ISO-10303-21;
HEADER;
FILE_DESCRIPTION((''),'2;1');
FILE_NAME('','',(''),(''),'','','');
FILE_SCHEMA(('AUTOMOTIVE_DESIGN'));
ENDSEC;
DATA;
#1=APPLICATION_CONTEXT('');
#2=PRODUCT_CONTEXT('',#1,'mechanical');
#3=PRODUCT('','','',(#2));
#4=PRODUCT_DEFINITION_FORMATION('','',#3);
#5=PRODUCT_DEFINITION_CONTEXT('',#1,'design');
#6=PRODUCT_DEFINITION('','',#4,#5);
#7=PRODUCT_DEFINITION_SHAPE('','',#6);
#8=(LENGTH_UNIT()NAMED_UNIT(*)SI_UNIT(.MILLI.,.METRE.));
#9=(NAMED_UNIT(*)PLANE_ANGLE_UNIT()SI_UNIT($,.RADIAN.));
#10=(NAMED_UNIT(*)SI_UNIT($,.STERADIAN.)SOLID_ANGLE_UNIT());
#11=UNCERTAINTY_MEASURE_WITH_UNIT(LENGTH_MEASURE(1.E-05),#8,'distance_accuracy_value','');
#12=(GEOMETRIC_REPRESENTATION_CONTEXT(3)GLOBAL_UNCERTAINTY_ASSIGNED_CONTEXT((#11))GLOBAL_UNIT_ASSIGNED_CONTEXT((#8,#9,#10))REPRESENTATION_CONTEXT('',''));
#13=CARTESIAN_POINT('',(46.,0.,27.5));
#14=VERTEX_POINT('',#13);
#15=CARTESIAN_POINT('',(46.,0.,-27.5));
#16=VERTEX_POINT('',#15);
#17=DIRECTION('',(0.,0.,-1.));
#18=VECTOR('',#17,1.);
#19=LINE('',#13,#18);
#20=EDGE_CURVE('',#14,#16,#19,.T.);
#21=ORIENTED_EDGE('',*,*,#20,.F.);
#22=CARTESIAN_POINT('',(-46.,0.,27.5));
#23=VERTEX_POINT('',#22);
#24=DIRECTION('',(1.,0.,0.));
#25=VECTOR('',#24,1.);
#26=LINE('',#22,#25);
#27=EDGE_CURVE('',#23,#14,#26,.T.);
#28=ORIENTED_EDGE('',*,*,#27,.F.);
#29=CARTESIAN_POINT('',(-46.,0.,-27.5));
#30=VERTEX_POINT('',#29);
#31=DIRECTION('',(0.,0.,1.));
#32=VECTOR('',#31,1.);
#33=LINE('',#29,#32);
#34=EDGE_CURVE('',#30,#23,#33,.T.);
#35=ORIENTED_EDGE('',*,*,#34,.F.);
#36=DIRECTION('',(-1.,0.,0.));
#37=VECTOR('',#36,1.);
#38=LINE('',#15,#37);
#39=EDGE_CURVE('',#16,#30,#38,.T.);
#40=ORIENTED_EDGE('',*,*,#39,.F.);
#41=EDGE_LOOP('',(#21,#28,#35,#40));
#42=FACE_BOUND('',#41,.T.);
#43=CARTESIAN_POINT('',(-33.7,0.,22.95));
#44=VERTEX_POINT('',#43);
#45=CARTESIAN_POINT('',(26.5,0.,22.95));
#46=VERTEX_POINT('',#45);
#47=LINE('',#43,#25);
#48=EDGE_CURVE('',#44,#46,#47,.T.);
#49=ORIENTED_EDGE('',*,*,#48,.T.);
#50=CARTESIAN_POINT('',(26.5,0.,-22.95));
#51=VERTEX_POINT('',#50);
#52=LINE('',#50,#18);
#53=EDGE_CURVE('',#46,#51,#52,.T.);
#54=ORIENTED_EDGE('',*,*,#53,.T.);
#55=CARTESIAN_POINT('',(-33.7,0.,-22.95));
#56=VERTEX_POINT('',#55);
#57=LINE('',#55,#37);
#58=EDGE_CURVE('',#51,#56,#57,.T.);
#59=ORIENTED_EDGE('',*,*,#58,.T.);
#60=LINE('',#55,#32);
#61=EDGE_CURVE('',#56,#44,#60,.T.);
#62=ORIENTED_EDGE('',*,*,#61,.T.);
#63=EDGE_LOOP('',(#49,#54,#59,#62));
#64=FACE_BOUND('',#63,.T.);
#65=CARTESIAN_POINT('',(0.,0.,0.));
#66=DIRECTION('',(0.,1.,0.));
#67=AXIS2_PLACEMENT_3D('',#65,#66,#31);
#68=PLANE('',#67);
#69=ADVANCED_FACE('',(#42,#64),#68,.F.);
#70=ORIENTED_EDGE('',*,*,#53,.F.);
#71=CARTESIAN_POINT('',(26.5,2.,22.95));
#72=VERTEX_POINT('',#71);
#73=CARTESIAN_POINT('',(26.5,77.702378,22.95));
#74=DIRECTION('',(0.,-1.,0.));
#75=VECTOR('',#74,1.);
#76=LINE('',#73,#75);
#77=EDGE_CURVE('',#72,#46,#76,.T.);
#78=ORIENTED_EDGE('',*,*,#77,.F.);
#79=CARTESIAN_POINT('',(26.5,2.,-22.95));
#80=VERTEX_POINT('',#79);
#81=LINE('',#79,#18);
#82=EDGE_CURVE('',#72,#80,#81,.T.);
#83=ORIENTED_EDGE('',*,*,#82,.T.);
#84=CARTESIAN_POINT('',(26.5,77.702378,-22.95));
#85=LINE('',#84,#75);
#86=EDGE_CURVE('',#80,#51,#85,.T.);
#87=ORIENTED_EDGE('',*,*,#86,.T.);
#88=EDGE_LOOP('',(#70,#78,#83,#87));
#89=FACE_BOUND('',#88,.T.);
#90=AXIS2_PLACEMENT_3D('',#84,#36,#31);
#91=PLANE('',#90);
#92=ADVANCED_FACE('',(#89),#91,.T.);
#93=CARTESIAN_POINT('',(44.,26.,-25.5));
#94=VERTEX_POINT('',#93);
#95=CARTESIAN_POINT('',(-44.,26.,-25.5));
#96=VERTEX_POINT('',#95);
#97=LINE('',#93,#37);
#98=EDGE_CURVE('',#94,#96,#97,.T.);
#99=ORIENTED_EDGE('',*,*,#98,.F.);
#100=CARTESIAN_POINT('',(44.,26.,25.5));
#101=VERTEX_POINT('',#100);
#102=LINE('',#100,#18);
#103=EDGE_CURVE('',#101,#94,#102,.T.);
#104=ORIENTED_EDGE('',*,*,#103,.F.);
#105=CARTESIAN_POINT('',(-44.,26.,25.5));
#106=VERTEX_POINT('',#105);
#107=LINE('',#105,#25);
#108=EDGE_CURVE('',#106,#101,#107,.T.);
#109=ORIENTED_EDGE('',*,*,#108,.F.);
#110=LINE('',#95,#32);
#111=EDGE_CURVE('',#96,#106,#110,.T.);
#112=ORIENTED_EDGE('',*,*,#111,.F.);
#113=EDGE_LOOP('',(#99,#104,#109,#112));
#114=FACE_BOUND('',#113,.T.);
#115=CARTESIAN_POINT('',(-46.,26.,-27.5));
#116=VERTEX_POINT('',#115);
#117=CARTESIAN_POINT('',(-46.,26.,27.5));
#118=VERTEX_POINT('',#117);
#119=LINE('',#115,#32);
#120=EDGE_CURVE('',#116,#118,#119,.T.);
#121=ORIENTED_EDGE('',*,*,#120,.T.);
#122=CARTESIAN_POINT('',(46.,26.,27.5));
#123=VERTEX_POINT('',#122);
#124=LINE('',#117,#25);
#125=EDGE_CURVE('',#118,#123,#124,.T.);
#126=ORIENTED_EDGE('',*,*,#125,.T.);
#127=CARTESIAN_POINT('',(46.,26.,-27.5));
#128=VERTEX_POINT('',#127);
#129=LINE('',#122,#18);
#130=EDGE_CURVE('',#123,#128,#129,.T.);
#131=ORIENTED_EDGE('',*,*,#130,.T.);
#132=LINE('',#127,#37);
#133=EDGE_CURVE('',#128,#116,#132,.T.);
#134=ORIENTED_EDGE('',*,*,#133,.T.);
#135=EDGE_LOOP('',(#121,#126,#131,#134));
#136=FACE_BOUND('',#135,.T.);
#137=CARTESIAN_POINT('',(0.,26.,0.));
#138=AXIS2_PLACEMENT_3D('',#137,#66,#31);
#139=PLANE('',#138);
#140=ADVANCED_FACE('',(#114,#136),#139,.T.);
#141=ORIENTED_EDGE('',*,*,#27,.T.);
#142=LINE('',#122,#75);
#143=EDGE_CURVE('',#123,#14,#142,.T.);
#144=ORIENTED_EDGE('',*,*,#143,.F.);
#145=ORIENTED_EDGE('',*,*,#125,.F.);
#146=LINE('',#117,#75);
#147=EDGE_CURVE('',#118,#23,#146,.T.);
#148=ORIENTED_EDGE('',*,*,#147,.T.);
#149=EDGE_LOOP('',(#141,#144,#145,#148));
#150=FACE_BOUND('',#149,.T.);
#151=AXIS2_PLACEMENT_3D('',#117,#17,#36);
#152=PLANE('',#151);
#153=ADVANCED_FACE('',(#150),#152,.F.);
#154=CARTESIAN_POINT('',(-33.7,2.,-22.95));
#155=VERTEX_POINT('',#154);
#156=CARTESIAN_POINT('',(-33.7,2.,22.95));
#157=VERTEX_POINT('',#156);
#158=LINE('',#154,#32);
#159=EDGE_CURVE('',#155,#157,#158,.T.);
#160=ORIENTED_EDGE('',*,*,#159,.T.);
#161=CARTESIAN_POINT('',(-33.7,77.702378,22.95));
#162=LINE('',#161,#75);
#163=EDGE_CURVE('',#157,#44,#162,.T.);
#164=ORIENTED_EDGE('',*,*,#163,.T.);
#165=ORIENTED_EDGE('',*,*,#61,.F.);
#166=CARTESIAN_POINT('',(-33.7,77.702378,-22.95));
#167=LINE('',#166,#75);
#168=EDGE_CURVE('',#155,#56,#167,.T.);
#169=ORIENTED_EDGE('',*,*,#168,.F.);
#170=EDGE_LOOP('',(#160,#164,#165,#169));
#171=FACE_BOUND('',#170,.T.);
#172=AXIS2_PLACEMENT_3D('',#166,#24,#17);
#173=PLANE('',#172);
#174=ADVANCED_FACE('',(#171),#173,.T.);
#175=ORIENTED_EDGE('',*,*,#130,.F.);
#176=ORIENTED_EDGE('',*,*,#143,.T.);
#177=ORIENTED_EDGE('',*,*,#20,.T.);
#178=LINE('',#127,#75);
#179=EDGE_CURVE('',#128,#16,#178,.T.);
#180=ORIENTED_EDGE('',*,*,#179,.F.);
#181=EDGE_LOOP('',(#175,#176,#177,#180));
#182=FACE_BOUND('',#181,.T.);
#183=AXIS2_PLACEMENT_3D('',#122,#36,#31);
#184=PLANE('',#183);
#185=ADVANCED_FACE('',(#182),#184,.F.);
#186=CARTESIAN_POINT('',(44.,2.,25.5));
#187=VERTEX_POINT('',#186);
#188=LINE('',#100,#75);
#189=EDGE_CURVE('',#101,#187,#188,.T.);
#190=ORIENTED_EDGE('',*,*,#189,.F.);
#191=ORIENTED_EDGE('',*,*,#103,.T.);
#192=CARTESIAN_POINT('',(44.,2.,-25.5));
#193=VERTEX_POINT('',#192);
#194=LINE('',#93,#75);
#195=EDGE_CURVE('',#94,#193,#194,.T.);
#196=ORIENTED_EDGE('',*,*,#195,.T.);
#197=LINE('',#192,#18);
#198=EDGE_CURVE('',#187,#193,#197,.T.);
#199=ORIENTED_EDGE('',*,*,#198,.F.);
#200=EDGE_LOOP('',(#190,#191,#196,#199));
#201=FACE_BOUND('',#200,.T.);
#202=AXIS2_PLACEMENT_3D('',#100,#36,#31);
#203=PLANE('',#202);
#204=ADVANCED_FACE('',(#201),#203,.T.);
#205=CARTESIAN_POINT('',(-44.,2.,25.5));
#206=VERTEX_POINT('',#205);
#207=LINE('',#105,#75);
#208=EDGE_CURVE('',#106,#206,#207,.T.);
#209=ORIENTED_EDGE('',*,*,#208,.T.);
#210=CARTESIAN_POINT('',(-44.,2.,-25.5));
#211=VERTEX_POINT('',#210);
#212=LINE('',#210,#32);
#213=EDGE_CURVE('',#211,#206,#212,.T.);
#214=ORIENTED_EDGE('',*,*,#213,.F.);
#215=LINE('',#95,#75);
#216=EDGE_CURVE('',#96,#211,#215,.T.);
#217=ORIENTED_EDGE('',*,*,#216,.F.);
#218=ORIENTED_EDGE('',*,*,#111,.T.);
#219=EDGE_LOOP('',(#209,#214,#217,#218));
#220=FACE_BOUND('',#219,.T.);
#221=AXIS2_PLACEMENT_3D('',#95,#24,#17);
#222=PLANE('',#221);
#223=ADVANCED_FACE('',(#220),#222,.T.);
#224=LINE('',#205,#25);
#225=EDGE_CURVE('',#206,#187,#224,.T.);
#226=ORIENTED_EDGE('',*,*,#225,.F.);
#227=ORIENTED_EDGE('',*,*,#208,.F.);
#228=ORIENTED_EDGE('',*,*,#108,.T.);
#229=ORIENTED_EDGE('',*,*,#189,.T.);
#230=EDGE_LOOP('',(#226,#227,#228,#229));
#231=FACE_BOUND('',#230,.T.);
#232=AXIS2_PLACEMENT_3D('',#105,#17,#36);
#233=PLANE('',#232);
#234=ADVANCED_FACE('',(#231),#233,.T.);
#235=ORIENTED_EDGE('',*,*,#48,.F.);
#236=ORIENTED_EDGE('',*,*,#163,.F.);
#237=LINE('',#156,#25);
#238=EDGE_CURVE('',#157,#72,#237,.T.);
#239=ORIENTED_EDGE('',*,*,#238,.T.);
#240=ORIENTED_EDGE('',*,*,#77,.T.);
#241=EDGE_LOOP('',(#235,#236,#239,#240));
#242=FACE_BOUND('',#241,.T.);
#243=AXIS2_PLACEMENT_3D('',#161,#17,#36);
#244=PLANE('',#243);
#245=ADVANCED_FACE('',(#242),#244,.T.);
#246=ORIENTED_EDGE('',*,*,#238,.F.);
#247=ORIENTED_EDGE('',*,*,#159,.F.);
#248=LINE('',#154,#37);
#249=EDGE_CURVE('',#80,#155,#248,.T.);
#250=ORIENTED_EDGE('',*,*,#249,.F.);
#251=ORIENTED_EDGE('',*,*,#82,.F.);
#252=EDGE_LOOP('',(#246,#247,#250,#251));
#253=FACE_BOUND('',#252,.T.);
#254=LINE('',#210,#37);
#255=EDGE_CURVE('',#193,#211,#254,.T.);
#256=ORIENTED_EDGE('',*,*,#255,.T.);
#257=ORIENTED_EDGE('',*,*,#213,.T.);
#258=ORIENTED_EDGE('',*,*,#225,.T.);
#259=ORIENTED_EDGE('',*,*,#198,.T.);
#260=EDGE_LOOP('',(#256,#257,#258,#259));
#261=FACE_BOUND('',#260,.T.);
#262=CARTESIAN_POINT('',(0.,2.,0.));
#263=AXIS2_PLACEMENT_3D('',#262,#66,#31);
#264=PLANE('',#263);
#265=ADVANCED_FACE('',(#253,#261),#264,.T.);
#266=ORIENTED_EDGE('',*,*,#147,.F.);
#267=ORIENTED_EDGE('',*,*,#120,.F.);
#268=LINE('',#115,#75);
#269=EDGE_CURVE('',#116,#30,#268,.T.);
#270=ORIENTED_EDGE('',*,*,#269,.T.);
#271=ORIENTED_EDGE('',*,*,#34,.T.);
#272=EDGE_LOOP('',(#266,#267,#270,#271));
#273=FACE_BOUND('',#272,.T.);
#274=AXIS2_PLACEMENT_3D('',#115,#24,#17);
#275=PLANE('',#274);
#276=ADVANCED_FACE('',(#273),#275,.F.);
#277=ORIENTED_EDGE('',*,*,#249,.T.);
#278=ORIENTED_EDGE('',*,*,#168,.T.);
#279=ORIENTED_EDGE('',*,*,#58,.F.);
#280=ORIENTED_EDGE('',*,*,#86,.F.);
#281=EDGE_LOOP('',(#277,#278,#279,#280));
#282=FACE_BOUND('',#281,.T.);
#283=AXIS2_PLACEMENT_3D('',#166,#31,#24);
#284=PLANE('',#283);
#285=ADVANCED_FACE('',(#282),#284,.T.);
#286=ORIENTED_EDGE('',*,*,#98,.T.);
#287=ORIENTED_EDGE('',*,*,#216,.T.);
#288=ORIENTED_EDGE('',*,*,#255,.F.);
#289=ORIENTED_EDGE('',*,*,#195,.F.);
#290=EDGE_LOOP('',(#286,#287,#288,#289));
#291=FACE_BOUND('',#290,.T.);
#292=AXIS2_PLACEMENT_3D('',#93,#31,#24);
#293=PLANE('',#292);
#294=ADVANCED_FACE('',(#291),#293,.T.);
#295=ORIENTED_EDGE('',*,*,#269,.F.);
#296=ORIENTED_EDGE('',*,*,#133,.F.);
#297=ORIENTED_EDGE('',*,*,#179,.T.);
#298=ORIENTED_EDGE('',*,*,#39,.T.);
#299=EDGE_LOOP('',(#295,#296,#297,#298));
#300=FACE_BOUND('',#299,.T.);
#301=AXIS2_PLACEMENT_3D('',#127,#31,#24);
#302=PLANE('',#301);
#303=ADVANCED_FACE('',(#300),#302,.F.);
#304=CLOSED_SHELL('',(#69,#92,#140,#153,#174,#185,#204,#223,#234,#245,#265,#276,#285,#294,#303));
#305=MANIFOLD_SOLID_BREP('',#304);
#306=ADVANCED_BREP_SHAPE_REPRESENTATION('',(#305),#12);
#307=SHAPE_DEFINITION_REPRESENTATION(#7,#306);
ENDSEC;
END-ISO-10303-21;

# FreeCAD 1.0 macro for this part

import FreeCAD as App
import Part
import Sketcher

V = App.Vector


def add_polygon(sketch, points):
    """Adds a closed chain of lines whose ends are joined by coincident constraints."""
    first, n = sketch.GeometryCount, len(points)
    for a, b in zip(points, points[1:] + points[:1]):
        sketch.addGeometry(Part.LineSegment(App.Vector(*a, 0), App.Vector(*b, 0)), False)
    for i in range(n):
        sketch.addConstraint(Sketcher.Constraint("Coincident", first + i, 2, first + (i + 1) % n, 1))

doc = App.newDocument("Part")
body = doc.addObject("PartDesign::Body", "Body")

# Sketch on XZ plane
sketch1 = body.newObject("Sketcher::SketchObject", "Sketch")
sketch1.AttachmentSupport = (doc.getObject("XZ_Plane"), [""])
sketch1.MapMode = "FlatFace"
add_polygon(sketch1, [(-44, -26), (-44, 26), (44, 26), (44, -26)])  # lines 0-3
sketch1.addConstraint([
    Sketcher.Constraint("Vertical", 0),
    Sketcher.Constraint("Horizontal", 1),
    Sketcher.Constraint("Vertical", 2),
    Sketcher.Constraint("Horizontal", 3),
    Sketcher.Constraint("Symmetric", 0, 2, 2, 2, -1, 1),
    Sketcher.Constraint("DistanceX", 1, 1, 1, 2, 88.0),
    Sketcher.Constraint("DistanceY", 0, 1, 0, 2, 51.0),
])
pad1 = body.newObject("PartDesign::Pad", "Pad")
pad1.Profile = sketch1
pad1.Length = 2
pad1.Reversed = True

# Sketch on XZ plane
sketch2 = body.newObject("Sketcher::SketchObject", "Sketch001")
sketch2.AttachmentSupport = (doc.getObject("XZ_Plane"), [""])
sketch2.MapMode = "FlatFace"
add_polygon(sketch2, [(-34, -23), (-34, 23), (26, 23), (26, -23)])  # lines 0-3
sketch2.addConstraint([
    Sketcher.Constraint("Vertical", 0),
    Sketcher.Constraint("Horizontal", 1),
    Sketcher.Constraint("Vertical", 2),
    Sketcher.Constraint("Horizontal", 3),
    Sketcher.Constraint("DistanceX", 1, 1, 1, 2, 60.2),
    Sketcher.Constraint("DistanceY", 0, 1, 0, 2, 45.9),
    Sketcher.Constraint("DistanceX", 0, 2, -1, 1, 33.7),
    Sketcher.Constraint("DistanceY", -1, 1, 0, 2, 22.95),
])
pocket1 = body.newObject("PartDesign::Pocket", "Pocket")
pocket1.Profile = sketch2
pocket1.Length = 2

# Sketch on XZ plane
sketch3 = body.newObject("Sketcher::SketchObject", "Sketch002")
sketch3.AttachmentSupport = (doc.getObject("XZ_Plane"), [""])
sketch3.MapMode = "FlatFace"
add_polygon(sketch3, [(-46, -28), (-46, 28), (46, 28), (46, -28)])  # lines 0-3
add_polygon(sketch3, [(44, 26), (-44, 26), (-44, -26), (44, -26)])  # lines 4-7
sketch3.addConstraint([
    Sketcher.Constraint("Vertical", 0),
    Sketcher.Constraint("Horizontal", 1),
    Sketcher.Constraint("Vertical", 2),
    Sketcher.Constraint("Horizontal", 3),
    Sketcher.Constraint("Horizontal", 4),
    Sketcher.Constraint("Vertical", 5),
    Sketcher.Constraint("Horizontal", 6),
    Sketcher.Constraint("Vertical", 7),
    Sketcher.Constraint("Symmetric", 0, 2, 2, 2, -1, 1),
    Sketcher.Constraint("Symmetric", 4, 2, 6, 2, -1, 1),
    Sketcher.Constraint("DistanceX", 1, 1, 1, 2, 92.0),
    Sketcher.Constraint("DistanceX", 4, 2, 4, 1, 88.0),
    Sketcher.Constraint("DistanceY", 0, 1, 0, 2, 55.0),
    Sketcher.Constraint("DistanceY", 5, 2, 5, 1, 51.0),
])
pad2 = body.newObject("PartDesign::Pad", "Pad001")
pad2.Profile = sketch3
pad2.Length = 26
pad2.Reversed = True

doc.recompute()
